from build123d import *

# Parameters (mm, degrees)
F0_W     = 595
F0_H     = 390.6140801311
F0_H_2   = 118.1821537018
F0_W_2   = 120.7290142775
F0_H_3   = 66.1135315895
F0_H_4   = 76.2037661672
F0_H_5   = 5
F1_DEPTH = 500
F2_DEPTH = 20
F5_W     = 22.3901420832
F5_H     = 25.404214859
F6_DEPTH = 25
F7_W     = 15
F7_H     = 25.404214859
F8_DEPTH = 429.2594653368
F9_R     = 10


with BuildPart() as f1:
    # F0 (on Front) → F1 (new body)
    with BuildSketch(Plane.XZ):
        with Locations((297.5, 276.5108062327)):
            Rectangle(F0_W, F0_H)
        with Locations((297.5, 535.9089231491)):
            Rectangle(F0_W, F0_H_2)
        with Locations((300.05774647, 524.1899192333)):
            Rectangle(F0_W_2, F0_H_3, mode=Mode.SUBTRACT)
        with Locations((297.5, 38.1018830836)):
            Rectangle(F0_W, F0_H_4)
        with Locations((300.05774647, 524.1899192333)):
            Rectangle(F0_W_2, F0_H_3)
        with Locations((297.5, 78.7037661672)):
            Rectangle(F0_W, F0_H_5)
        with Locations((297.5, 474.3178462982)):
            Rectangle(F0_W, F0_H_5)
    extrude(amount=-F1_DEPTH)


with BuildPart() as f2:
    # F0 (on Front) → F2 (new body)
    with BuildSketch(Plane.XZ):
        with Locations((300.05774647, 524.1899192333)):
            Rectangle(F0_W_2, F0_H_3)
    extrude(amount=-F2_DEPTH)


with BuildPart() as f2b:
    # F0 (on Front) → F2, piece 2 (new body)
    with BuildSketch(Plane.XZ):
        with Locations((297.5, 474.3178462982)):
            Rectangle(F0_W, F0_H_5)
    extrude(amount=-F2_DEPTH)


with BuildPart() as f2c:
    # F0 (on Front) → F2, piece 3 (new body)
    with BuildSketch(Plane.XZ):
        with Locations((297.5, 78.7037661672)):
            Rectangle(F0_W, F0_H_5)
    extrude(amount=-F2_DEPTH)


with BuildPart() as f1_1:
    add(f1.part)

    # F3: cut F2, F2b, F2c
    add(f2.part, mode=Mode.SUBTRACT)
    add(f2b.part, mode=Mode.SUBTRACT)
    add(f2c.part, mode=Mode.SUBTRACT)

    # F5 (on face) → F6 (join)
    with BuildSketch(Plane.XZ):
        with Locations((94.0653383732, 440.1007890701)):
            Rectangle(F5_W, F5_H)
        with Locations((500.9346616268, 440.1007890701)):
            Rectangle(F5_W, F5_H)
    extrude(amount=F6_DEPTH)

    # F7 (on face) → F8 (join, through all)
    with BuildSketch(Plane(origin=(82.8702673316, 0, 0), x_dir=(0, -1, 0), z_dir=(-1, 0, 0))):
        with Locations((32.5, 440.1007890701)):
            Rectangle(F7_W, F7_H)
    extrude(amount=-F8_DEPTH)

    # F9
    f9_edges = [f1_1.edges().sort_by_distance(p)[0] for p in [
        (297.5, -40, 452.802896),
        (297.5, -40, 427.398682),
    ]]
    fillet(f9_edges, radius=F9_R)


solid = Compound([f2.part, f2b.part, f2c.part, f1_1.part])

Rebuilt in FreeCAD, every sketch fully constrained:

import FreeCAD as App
import Part
import Sketcher

V = App.Vector


def edges_at(feature, points):
    """Names of the edges that pass closest to the given points."""
    edges = feature.Shape.Edges
    near = lambda p: min(range(len(edges)), key=lambda i: edges[i].distToShape(Part.Vertex(*p))[0])
    return sorted({f"Edge{near(p) + 1}" for p in points})

doc = App.newDocument("Part")
params = doc.addObject("Spreadsheet::Sheet", "Params")
for row, (alias, value) in enumerate([
    ("sketch1_width", "595 mm"),
    ("pad1_length", "500 mm"),
    ("pad2_length", "20 mm"),
    ("sketch3_width", "595 mm"),
    ("sketch3_height", "5 mm"),
    ("pad3_length", "20 mm"),
    ("sketch4_width", "595 mm"),
    ("sketch4_height", "5 mm"),
    ("pad4_length", "20 mm"),
    ("pad5_length", "25 mm"),
    ("sketch6_width", "15 mm"),
    ("pad6_length", "429.259465 mm"),
    ("fillet_radius", "10 mm"),
], start=1):
    params.set(f"A{row}", alias)
    params.set(f"B{row}", "=" + value)
    params.setAlias(f"B{row}", alias)

body = doc.addObject("PartDesign::Body", "Body")

# Sketch on XZ plane
sketch1 = body.newObject("Sketcher::SketchObject", "Sketch")
sketch1.AttachmentSupport = (doc.getObject("XZ_Plane"), [""])
sketch1.MapMode = "FlatFace"
sketch1.addGeometry([
    Part.LineSegment(V(0, 0, 0), V(595, 0, 0)),
    Part.LineSegment(V(595, 0, 0), V(595, 595, 0)),
    Part.LineSegment(V(595, 595, 0), V(0, 595, 0)),
    Part.LineSegment(V(0, 595, 0), V(0, 0, 0)),
], False)
sketch1.addConstraint([
    Sketcher.Constraint("Coincident", 0, 2, 1, 1),
    Sketcher.Constraint("Coincident", 1, 2, 2, 1),
    Sketcher.Constraint("Coincident", 2, 2, 3, 1),
    Sketcher.Constraint("Coincident", 3, 2, 0, 1),
    Sketcher.Constraint("Horizontal", 0),
    Sketcher.Constraint("Vertical", 1),
    Sketcher.Constraint("Horizontal", 2),
    Sketcher.Constraint("Vertical", 3),
    Sketcher.Constraint("Coincident", 3, 2, -1, 1),
    Sketcher.Constraint("Equal", 2, 1),
    Sketcher.Constraint("DistanceX", 0, 1, 0, 2, 595.0),
])
sketch1.setExpression("Constraints[10]", "Params.sketch1_width")
pad1 = body.newObject("PartDesign::Pad", "Pad")
pad1.Profile = sketch1
pad1.setExpression("Length", "Params.pad1_length")
pad1.Reversed = True
body2 = doc.addObject("PartDesign::Body", "Body001")

# Sketch on XZ plane
sketch2 = body2.newObject("Sketcher::SketchObject", "Sketch001")
sketch2.AttachmentSupport = (doc.getObject("XZ_Plane001"), [""])
sketch2.MapMode = "FlatFace"
sketch2.addGeometry([
    Part.LineSegment(V(240, 557, 0), V(240, 491, 0)),
    Part.LineSegment(V(240, 491, 0), V(360, 491, 0)),
    Part.LineSegment(V(360, 491, 0), V(360, 557, 0)),
    Part.LineSegment(V(360, 557, 0), V(240, 557, 0)),
], False)
sketch2.addConstraint([
    Sketcher.Constraint("Coincident", 0, 2, 1, 1),
    Sketcher.Constraint("Coincident", 1, 2, 2, 1),
    Sketcher.Constraint("Coincident", 2, 2, 3, 1),
    Sketcher.Constraint("Coincident", 3, 2, 0, 1),
    Sketcher.Constraint("Vertical", 0),
    Sketcher.Constraint("Horizontal", 1),
    Sketcher.Constraint("Vertical", 2),
    Sketcher.Constraint("Horizontal", 3),
    Sketcher.Constraint("DistanceY", 0, 2, 0, 1, 66.113532),
    Sketcher.Constraint("DistanceX", 1, 1, 1, 2, 120.729014),
    Sketcher.Constraint("DistanceX", -1, 1, 0, 2, 239.693239),
    Sketcher.Constraint("DistanceY", -1, 1, 0, 2, 491.133153),
])
pad2 = body2.newObject("PartDesign::Pad", "Pad001")
pad2.Profile = sketch2
pad2.setExpression("Length", "Params.pad2_length")
pad2.Reversed = True
body3 = doc.addObject("PartDesign::Body", "Body002")

# Sketch on XZ plane
sketch3 = body3.newObject("Sketcher::SketchObject", "Sketch002")
sketch3.AttachmentSupport = (doc.getObject("XZ_Plane002"), [""])
sketch3.MapMode = "FlatFace"
sketch3.addGeometry([
    Part.LineSegment(V(0, 477, 0), V(0, 472, 0)),
    Part.LineSegment(V(0, 472, 0), V(595, 472, 0)),
    Part.LineSegment(V(595, 472, 0), V(595, 477, 0)),
    Part.LineSegment(V(595, 477, 0), V(0, 477, 0)),
], False)
sketch3.addConstraint([
    Sketcher.Constraint("Coincident", 0, 2, 1, 1),
    Sketcher.Constraint("Coincident", 1, 2, 2, 1),
    Sketcher.Constraint("Coincident", 2, 2, 3, 1),
    Sketcher.Constraint("Coincident", 3, 2, 0, 1),
    Sketcher.Constraint("Vertical", 0),
    Sketcher.Constraint("Horizontal", 1),
    Sketcher.Constraint("Vertical", 2),
    Sketcher.Constraint("Horizontal", 3),
    Sketcher.Constraint("PointOnObject", 0, 2, -2),
    Sketcher.Constraint("DistanceX", 1, 1, 1, 2, 595.0),
    Sketcher.Constraint("DistanceY", 0, 2, 0, 1, 5.0),
    Sketcher.Constraint("DistanceY", -1, 1, 0, 2, 471.817846),
])
sketch3.setExpression("Constraints[9]", "Params.sketch3_width")
sketch3.setExpression("Constraints[10]", "Params.sketch3_height")
pad3 = body3.newObject("PartDesign::Pad", "Pad002")
pad3.Profile = sketch3
pad3.setExpression("Length", "Params.pad3_length")
pad3.Reversed = True
body4 = doc.addObject("PartDesign::Body", "Body003")

# Sketch on XZ plane
sketch4 = body4.newObject("Sketcher::SketchObject", "Sketch003")
sketch4.AttachmentSupport = (doc.getObject("XZ_Plane003"), [""])
sketch4.MapMode = "FlatFace"
sketch4.addGeometry([
    Part.LineSegment(V(0, 81, 0), V(0, 76, 0)),
    Part.LineSegment(V(0, 76, 0), V(595, 76, 0)),
    Part.LineSegment(V(595, 76, 0), V(595, 81, 0)),
    Part.LineSegment(V(595, 81, 0), V(0, 81, 0)),
], False)
sketch4.addConstraint([
    Sketcher.Constraint("Coincident", 0, 2, 1, 1),
    Sketcher.Constraint("Coincident", 1, 2, 2, 1),
    Sketcher.Constraint("Coincident", 2, 2, 3, 1),
    Sketcher.Constraint("Coincident", 3, 2, 0, 1),
    Sketcher.Constraint("Vertical", 0),
    Sketcher.Constraint("Horizontal", 1),
    Sketcher.Constraint("Vertical", 2),
    Sketcher.Constraint("Horizontal", 3),
    Sketcher.Constraint("PointOnObject", 0, 2, -2),
    Sketcher.Constraint("DistanceX", 1, 1, 1, 2, 595.0),
    Sketcher.Constraint("DistanceY", 0, 2, 0, 1, 5.0),
    Sketcher.Constraint("DistanceY", -1, 1, 0, 2, 76.203766),
])
sketch4.setExpression("Constraints[9]", "Params.sketch4_width")
sketch4.setExpression("Constraints[10]", "Params.sketch4_height")
pad4 = body4.newObject("PartDesign::Pad", "Pad003")
pad4.Profile = sketch4
pad4.setExpression("Length", "Params.pad4_length")
pad4.Reversed = True
doc.recompute()

body5 = doc.addObject("PartDesign::Body", "Body004")
body5.BaseFeature = body2
boolean = body.newObject("PartDesign::Boolean", "Boolean")
boolean.Type = "Cut"
boolean.addObjects([body5])
doc.recompute()

body6 = doc.addObject("PartDesign::Body", "Body005")
body6.BaseFeature = body3
boolean2 = body.newObject("PartDesign::Boolean", "Boolean001")
boolean2.Type = "Cut"
boolean2.addObjects([body6])
doc.recompute()

body7 = doc.addObject("PartDesign::Body", "Body006")
body7.BaseFeature = body4
boolean3 = body.newObject("PartDesign::Boolean", "Boolean002")
boolean3.Type = "Cut"
boolean3.addObjects([body7])
doc.recompute()

# Sketch on XZ plane
sketch5 = body.newObject("Sketcher::SketchObject", "Sketch004")
sketch5.AttachmentSupport = (doc.getObject("XZ_Plane"), [""])
sketch5.MapMode = "FlatFace"
sketch5.addGeometry([
    Part.LineSegment(V(83, 453, 0), V(83, 427, 0)),  # 0
    Part.LineSegment(V(83, 427, 0), V(105, 427, 0)),  # 1
    Part.LineSegment(V(105, 427, 0), V(105, 453, 0)),  # 2
    Part.LineSegment(V(105, 453, 0), V(83, 453, 0)),  # 3
    Part.LineSegment(V(490, 453, 0), V(490, 427, 0)),  # 4
    Part.LineSegment(V(490, 427, 0), V(512, 427, 0)),  # 5
    Part.LineSegment(V(512, 427, 0), V(512, 453, 0)),  # 6
    Part.LineSegment(V(512, 453, 0), V(490, 453, 0)),  # 7
], False)
sketch5.addConstraint([
    Sketcher.Constraint("Coincident", 0, 2, 1, 1),
    Sketcher.Constraint("Coincident", 1, 2, 2, 1),
    Sketcher.Constraint("Coincident", 2, 2, 3, 1),
    Sketcher.Constraint("Coincident", 3, 2, 0, 1),
    Sketcher.Constraint("Coincident", 4, 2, 5, 1),
    Sketcher.Constraint("Coincident", 5, 2, 6, 1),
    Sketcher.Constraint("Coincident", 6, 2, 7, 1),
    Sketcher.Constraint("Coincident", 7, 2, 4, 1),
    Sketcher.Constraint("Vertical", 0),
    Sketcher.Constraint("Horizontal", 1),
    Sketcher.Constraint("Vertical", 2),
    Sketcher.Constraint("Horizontal", 3),
    Sketcher.Constraint("Vertical", 4),
    Sketcher.Constraint("Horizontal", 5),
    Sketcher.Constraint("Vertical", 6),
    Sketcher.Constraint("Horizontal", 7),
    Sketcher.Constraint("Horizontal", 1, 2, 4, 2),
    Sketcher.Constraint("Horizontal", 3, 2, 6, 2),
    Sketcher.Constraint("Equal", 3, 5),
    Sketcher.Constraint("DistanceX", 1, 1, 1, 2, 22.390142),
    Sketcher.Constraint("DistanceY", 0, 2, 0, 1, 25.404215),
    Sketcher.Constraint("DistanceY", -1, 1, 0, 2, 427.398682),
    Sketcher.Constraint("DistanceX", -1, 1, 1, 2, 105.260409),
    Sketcher.Constraint("DistanceX", -1, 1, 4, 2, 489.739591),
])
pad5 = body.newObject("PartDesign::Pad", "Pad004")
pad5.Profile = sketch5
pad5.setExpression("Length", "Params.pad5_length")

# Sketch on YZ plane
sketch6 = body.newObject("Sketcher::SketchObject", "Sketch005")
sketch6.AttachmentSupport = (doc.getObject("YZ_Plane"), [""])
sketch6.MapMode = "FlatFace"
sketch6.AttachmentOffset = App.Placement(V(0, 0, 82.870267), App.Rotation())
sketch6.addGeometry([
    Part.LineSegment(V(-25, 453, 0), V(-25, 427, 0)),
    Part.LineSegment(V(-25, 427, 0), V(-40, 427, 0)),
    Part.LineSegment(V(-40, 427, 0), V(-40, 453, 0)),
    Part.LineSegment(V(-40, 453, 0), V(-25, 453, 0)),
], False)
sketch6.addConstraint([
    Sketcher.Constraint("Coincident", 0, 2, 1, 1),
    Sketcher.Constraint("Coincident", 1, 2, 2, 1),
    Sketcher.Constraint("Coincident", 2, 2, 3, 1),
    Sketcher.Constraint("Coincident", 3, 2, 0, 1),
    Sketcher.Constraint("Vertical", 0),
    Sketcher.Constraint("Horizontal", 1),
    Sketcher.Constraint("Vertical", 2),
    Sketcher.Constraint("Horizontal", 3),
    Sketcher.Constraint("DistanceX", 1, 2, 1, 1, 15.0),
    Sketcher.Constraint("DistanceX", 0, 2, -1, 1, 25.0),
    Sketcher.Constraint("DistanceY", 0, 2, 0, 1, 25.404215),
    Sketcher.Constraint("DistanceY", -1, 1, 0, 2, 427.398682),
])
sketch6.setExpression("Constraints[8]", "Params.sketch6_width")
pad6 = body.newObject("PartDesign::Pad", "Pad005")
pad6.Profile = sketch6
pad6.setExpression("Length", "Params.pad6_length")
doc.recompute()

fillet = body.newObject("PartDesign::Fillet", "Fillet")
fillet.Base = (pad6, edges_at(pad6, [(297.5, -40, 452.803), (297.5, -40, 427.399)]))
fillet.setExpression("Radius", "Params.fillet_radius")

doc.recompute()
